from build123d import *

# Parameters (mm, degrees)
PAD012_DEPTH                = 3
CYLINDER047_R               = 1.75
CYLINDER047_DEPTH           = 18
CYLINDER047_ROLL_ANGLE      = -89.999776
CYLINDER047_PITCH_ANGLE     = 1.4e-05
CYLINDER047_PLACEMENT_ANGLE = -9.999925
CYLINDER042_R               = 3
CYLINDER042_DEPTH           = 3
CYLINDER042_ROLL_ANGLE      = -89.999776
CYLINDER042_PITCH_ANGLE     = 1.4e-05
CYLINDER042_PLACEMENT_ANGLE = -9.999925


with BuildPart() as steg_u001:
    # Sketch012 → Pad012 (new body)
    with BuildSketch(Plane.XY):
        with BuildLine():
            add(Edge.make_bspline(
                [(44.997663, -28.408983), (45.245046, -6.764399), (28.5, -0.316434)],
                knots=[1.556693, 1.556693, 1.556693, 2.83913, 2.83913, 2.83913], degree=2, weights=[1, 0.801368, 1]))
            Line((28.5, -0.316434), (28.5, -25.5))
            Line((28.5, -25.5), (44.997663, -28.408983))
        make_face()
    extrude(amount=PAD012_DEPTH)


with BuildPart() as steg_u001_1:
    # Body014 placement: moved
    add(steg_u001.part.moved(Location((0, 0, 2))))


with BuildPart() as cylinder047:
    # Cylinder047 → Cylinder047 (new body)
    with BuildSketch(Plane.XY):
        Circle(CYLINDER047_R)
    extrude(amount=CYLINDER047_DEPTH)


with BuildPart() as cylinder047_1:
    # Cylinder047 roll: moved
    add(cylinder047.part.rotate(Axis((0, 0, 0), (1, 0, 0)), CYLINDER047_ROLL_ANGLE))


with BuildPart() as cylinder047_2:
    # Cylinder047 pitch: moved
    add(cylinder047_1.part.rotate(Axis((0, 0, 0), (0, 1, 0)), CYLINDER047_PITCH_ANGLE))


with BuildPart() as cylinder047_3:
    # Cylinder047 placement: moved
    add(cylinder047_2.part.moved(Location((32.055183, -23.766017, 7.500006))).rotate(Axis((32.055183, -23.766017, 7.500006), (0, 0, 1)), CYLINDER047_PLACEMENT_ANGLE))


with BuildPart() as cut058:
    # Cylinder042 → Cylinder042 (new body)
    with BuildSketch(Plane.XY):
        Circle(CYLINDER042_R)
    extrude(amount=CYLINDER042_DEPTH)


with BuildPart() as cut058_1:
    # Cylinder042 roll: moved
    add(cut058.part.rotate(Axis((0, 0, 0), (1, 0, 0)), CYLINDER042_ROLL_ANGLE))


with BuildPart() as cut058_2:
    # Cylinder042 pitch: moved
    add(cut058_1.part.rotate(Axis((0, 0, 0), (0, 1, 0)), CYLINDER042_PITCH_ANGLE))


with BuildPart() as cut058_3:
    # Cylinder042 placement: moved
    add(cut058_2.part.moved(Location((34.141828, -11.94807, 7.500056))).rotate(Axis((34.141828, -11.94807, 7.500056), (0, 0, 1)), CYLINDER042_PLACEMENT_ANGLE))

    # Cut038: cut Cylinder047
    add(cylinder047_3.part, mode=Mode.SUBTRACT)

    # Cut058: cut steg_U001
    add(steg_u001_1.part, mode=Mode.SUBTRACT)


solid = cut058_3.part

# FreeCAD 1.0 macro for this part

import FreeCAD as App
import Part
import Sketcher

V = App.Vector
Q = App.Units.Quantity

doc = App.newDocument("Part")
body = doc.addObject("PartDesign::Body", "Body")

# Sketch on XY plane
sketch1 = body.newObject("Sketcher::SketchObject", "Sketch")
sketch1.AttachmentSupport = (doc.getObject("XY_Plane"), [""])
sketch1.MapMode = "FlatFace"
sketch1.addGeometry([
    Part.BSplineCurve([V(44.997663, -28.408983, 0), V(45.245046, -6.764399, 0), V(28.5, -0.316434, 0)], [3, 3], [1.556693, 2.83913], False, 2, [1, 0.801368, 1], False),
    Part.LineSegment(V(28.5, -0.316434, 0), V(28.5, -25.5, 0)),
    Part.LineSegment(V(28.5, -25.5, 0), V(44.997663, -28.408983, 0)),
], False)
sketch1.addConstraint([
    Sketcher.Constraint("Block", 0),
    Sketcher.Constraint("Coincident", 0, 2, 1, 1),
    Sketcher.Constraint("Coincident", 1, 2, 2, 1),
    Sketcher.Constraint("Coincident", 2, 2, 0, 1),
    Sketcher.Constraint("Vertical", 1),
    Sketcher.Constraint("Angle", 2, Q("-10 deg")),
])
pad1 = body.newObject("PartDesign::Pad", "Pad")
pad1.Profile = sketch1
pad1.Length = 3
body2 = doc.addObject("PartDesign::Body", "Body001")
doc.recompute()

body.Placement = App.Placement(V(0, 0, 2), App.Rotation(V(0, 0, 1), 0))
boolean = body2.newObject("PartDesign::Boolean", "Boolean")
boolean.Type = "Fuse"
boolean.addObjects([body])
body3 = doc.addObject("PartDesign::Body", "Body002")

# Sketch on XY plane
sketch2 = body3.newObject("Sketcher::SketchObject", "Sketch001")
sketch2.AttachmentSupport = (doc.getObject("XY_Plane002"), [""])
sketch2.MapMode = "FlatFace"
sketch2.addGeometry(Part.Circle(V(0, 0, 0), V(0, 0, 1), 1.8), False)
sketch2.addConstraint([
    Sketcher.Constraint("Coincident", 0, 3, -1, 1),
    Sketcher.Constraint("Diameter", 0, Q("3.5 mm")),
])
pad2 = body3.newObject("PartDesign::Pad", "Pad001")
pad2.Profile = sketch2
pad2.Length = 18
body4 = doc.addObject("PartDesign::Body", "Body003")
doc.recompute()

body3.Placement = App.Placement(V(0, 0, 0), App.Rotation(V(1, 0, 0), 270.000224))
boolean2 = body4.newObject("PartDesign::Boolean", "Boolean001")
boolean2.Type = "Fuse"
boolean2.addObjects([body3])
body5 = doc.addObject("PartDesign::Body", "Body004")
doc.recompute()

body4.Placement = App.Placement(V(0, 0, 0), App.Rotation(V(0, 1, 0), 0.000014))
boolean3 = body5.newObject("PartDesign::Boolean", "Boolean002")
boolean3.Type = "Fuse"
boolean3.addObjects([body4])
body6 = doc.addObject("PartDesign::Body", "Body005")
doc.recompute()

body5.Placement = App.Placement(V(32.055183, -23.766017, 7.500006), App.Rotation(V(0, 0, 1), 350.000075))
boolean4 = body6.newObject("PartDesign::Boolean", "Boolean003")
boolean4.Type = "Fuse"
boolean4.addObjects([body5])
body7 = doc.addObject("PartDesign::Body", "Body006")

# Sketch on XY plane
sketch3 = body7.newObject("Sketcher::SketchObject", "Sketch002")
sketch3.AttachmentSupport = (doc.getObject("XY_Plane006"), [""])
sketch3.MapMode = "FlatFace"
sketch3.addGeometry(Part.Circle(V(0, 0, 0), V(0, 0, 1), 3), False)
sketch3.addConstraint([
    Sketcher.Constraint("Coincident", 0, 3, -1, 1),
    Sketcher.Constraint("Diameter", 0, Q("6 mm")),
])
pad3 = body7.newObject("PartDesign::Pad", "Pad002")
pad3.Profile = sketch3
pad3.Length = 3
body8 = doc.addObject("PartDesign::Body", "Body007")
doc.recompute()

body7.Placement = App.Placement(V(0, 0, 0), App.Rotation(V(1, 0, 0), 270.000224))
boolean5 = body8.newObject("PartDesign::Boolean", "Boolean004")
boolean5.Type = "Fuse"
boolean5.addObjects([body7])
body9 = doc.addObject("PartDesign::Body", "Body008")
doc.recompute()

body8.Placement = App.Placement(V(0, 0, 0), App.Rotation(V(0, 1, 0), 0.000014))
boolean6 = body9.newObject("PartDesign::Boolean", "Boolean005")
boolean6.Type = "Fuse"
boolean6.addObjects([body8])
body10 = doc.addObject("PartDesign::Body", "Body009")
doc.recompute()

body9.Placement = App.Placement(V(34.141828, -11.94807, 7.500056), App.Rotation(V(0, 0, 1), 350.000075))
boolean7 = body10.newObject("PartDesign::Boolean", "Boolean006")
boolean7.Type = "Fuse"
boolean7.addObjects([body9])
doc.recompute()

boolean8 = body10.newObject("PartDesign::Boolean", "Boolean007")
boolean8.Type = "Cut"
boolean8.addObjects([body6])
doc.recompute()

boolean9 = body10.newObject("PartDesign::Boolean", "Boolean008")
boolean9.Type = "Cut"
boolean9.addObjects([body2])

doc.recompute()
